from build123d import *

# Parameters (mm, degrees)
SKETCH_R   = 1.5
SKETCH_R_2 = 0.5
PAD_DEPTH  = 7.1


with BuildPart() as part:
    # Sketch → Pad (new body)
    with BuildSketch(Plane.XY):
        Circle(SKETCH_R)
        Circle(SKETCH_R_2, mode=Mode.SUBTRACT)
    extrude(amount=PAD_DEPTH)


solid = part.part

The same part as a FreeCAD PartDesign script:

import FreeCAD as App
import Part
import Sketcher
Q = App.Units.Quantity

doc = App.newDocument("Part")
body = doc.addObject("PartDesign::Body", "Body")

# Sketch on XY plane
sketch1 = body.newObject("Sketcher::SketchObject", "Sketch")
sketch1.AttachmentSupport = (doc.getObject("XY_Plane"), [""])
sketch1.MapMode = "FlatFace"
sketch1.addGeometry([
    Part.Circle(App.Vector(0, 0, 0), App.Vector(0, 0, 1), 1.5),
    Part.Circle(App.Vector(0, 0, 0), App.Vector(0, 0, 1), 0.5),
], False)
sketch1.addConstraint([
    Sketcher.Constraint("Coincident", 0, 3, -1, 1),
    Sketcher.Constraint("Coincident", 1, 3, -1, 1),
    Sketcher.Constraint("Diameter", 0, Q("3 mm")),
    Sketcher.Constraint("Diameter", 1, Q("1 mm")),
])
pad1 = body.newObject("PartDesign::Pad", "Pad")
pad1.Profile = sketch1
pad1.Length = 7.1

doc.recompute()
